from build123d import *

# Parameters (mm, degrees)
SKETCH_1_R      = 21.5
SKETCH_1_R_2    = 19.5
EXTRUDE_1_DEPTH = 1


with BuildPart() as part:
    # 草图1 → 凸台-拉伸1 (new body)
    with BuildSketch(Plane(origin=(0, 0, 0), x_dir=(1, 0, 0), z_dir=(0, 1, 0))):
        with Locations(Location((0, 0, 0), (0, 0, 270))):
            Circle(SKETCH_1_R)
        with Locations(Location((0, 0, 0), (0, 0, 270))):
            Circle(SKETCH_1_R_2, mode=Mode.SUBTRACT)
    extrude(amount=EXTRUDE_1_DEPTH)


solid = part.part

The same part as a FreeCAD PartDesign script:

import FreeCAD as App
import Part
import Sketcher

V = App.Vector

doc = App.newDocument("Part")
body = doc.addObject("PartDesign::Body", "Body")

sketch1 = body.newObject("Sketcher::SketchObject", "Sketch")
sketch1.AttachmentSupport = (doc.getObject("XZ_Plane"), [""])
sketch1.MapMode = "FlatFace"
sketch1.addGeometry([
    Part.Circle(V(0, 0, 0), V(0, 0, 1), 22),
    Part.Circle(V(0, 0, 0), V(0, 0, 1), 20),
], False)
sketch1.addConstraint([
    Sketcher.Constraint("Coincident", 0, 3, -1, 1),
    Sketcher.Constraint("Coincident", 1, 3, -1, 1),
    Sketcher.Constraint("Diameter", 0, 43.0),
    Sketcher.Constraint("Diameter", 1, 39.0),
])
pad1 = body.newObject("PartDesign::Pad", "Pad")
pad1.Profile = sketch1
pad1.Length = 1
pad1.Reversed = True

doc.recompute()
